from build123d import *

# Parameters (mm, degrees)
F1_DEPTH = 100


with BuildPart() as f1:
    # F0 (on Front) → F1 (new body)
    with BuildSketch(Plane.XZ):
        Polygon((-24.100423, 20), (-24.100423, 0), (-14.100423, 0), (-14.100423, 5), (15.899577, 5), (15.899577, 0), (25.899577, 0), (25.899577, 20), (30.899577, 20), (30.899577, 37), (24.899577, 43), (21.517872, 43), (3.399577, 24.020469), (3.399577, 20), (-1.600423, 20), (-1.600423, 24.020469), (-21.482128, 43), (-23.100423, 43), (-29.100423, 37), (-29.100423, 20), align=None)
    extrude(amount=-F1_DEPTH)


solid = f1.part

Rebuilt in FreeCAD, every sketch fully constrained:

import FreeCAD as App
import Part
import Sketcher
Q = App.Units.Quantity

doc = App.newDocument("Part")
params = doc.addObject("Spreadsheet::Sheet", "Params")
for row, (alias, value) in enumerate([
    ("sketch1_width", "10 mm"),
    ("sketch1_width2", "30 mm"),
    ("sketch1_width3", "5 mm"),
    ("sketch1_height", "20 mm"),
    ("sketch1_height2", "17 mm"),
    ("pad1_length", "100 mm"),
], start=1):
    params.set(f"A{row}", alias)
    params.set(f"B{row}", "=" + value)
    params.setAlias(f"B{row}", alias)

body = doc.addObject("PartDesign::Body", "Body")

# Sketch on XZ plane
sketch1 = body.newObject("Sketcher::SketchObject", "Sketch")
sketch1.AttachmentSupport = (doc.getObject("XZ_Plane"), [""])
sketch1.MapMode = "FlatFace"
sketch1.addGeometry(Part.LineSegment(App.Vector(-24.1, 20, 0), App.Vector(-24.1, 0, 0)), False)
sketch1.addGeometry(Part.LineSegment(App.Vector(-24.1, 0, 0), App.Vector(-14.1, 0, 0)), False)
sketch1.addGeometry(Part.LineSegment(App.Vector(-14.1, 0, 0), App.Vector(-14.1, 5, 0)), False)
sketch1.addGeometry(Part.LineSegment(App.Vector(-14.1, 5, 0), App.Vector(15.9, 5, 0)), False)
sketch1.addGeometry(Part.LineSegment(App.Vector(15.9, 5, 0), App.Vector(15.9, 0, 0)), False)
sketch1.addGeometry(Part.LineSegment(App.Vector(15.9, 0, 0), App.Vector(25.9, 0, 0)), False)
sketch1.addGeometry(Part.LineSegment(App.Vector(25.9, 0, 0), App.Vector(25.9, 20, 0)), False)
sketch1.addGeometry(Part.LineSegment(App.Vector(25.9, 20, 0), App.Vector(30.9, 20, 0)), False)
sketch1.addGeometry(Part.LineSegment(App.Vector(30.9, 20, 0), App.Vector(30.9, 37, 0)), False)
sketch1.addGeometry(Part.LineSegment(App.Vector(30.9, 37, 0), App.Vector(24.9, 43, 0)), False)
sketch1.addGeometry(Part.LineSegment(App.Vector(24.9, 43, 0), App.Vector(21.5, 43, 0)), False)
sketch1.addGeometry(Part.LineSegment(App.Vector(21.5, 43, 0), App.Vector(3.4, 24, 0)), False)
sketch1.addGeometry(Part.LineSegment(App.Vector(3.4, 24, 0), App.Vector(3.4, 20, 0)), False)
sketch1.addGeometry(Part.LineSegment(App.Vector(3.4, 20, 0), App.Vector(-1.6, 20, 0)), False)
sketch1.addGeometry(Part.LineSegment(App.Vector(-1.6, 20, 0), App.Vector(-1.6, 24, 0)), False)
sketch1.addGeometry(Part.LineSegment(App.Vector(-1.6, 24, 0), App.Vector(-21.5, 43, 0)), False)
sketch1.addGeometry(Part.LineSegment(App.Vector(-21.5, 43, 0), App.Vector(-23.1, 43, 0)), False)
sketch1.addGeometry(Part.LineSegment(App.Vector(-23.1, 43, 0), App.Vector(-29.1, 37, 0)), False)
sketch1.addGeometry(Part.LineSegment(App.Vector(-29.1, 37, 0), App.Vector(-29.1, 20, 0)), False)
sketch1.addGeometry(Part.LineSegment(App.Vector(-29.1, 20, 0), App.Vector(-24.1, 20, 0)), False)
sketch1.addConstraint(Sketcher.Constraint("Coincident", 0, 2, 1, 1))
sketch1.addConstraint(Sketcher.Constraint("Coincident", 1, 2, 2, 1))
sketch1.addConstraint(Sketcher.Constraint("Coincident", 2, 2, 3, 1))
sketch1.addConstraint(Sketcher.Constraint("Coincident", 3, 2, 4, 1))
sketch1.addConstraint(Sketcher.Constraint("Coincident", 4, 2, 5, 1))
sketch1.addConstraint(Sketcher.Constraint("Coincident", 5, 2, 6, 1))
sketch1.addConstraint(Sketcher.Constraint("Coincident", 6, 2, 7, 1))
sketch1.addConstraint(Sketcher.Constraint("Coincident", 7, 2, 8, 1))
sketch1.addConstraint(Sketcher.Constraint("Coincident", 8, 2, 9, 1))
sketch1.addConstraint(Sketcher.Constraint("Coincident", 9, 2, 10, 1))
sketch1.addConstraint(Sketcher.Constraint("Coincident", 10, 2, 11, 1))
sketch1.addConstraint(Sketcher.Constraint("Coincident", 11, 2, 12, 1))
sketch1.addConstraint(Sketcher.Constraint("Coincident", 12, 2, 13, 1))
sketch1.addConstraint(Sketcher.Constraint("Coincident", 13, 2, 14, 1))
sketch1.addConstraint(Sketcher.Constraint("Coincident", 14, 2, 15, 1))
sketch1.addConstraint(Sketcher.Constraint("Coincident", 15, 2, 16, 1))
sketch1.addConstraint(Sketcher.Constraint("Coincident", 16, 2, 17, 1))
sketch1.addConstraint(Sketcher.Constraint("Coincident", 17, 2, 18, 1))
sketch1.addConstraint(Sketcher.Constraint("Coincident", 18, 2, 19, 1))
sketch1.addConstraint(Sketcher.Constraint("Coincident", 19, 2, 0, 1))
sketch1.addConstraint(Sketcher.Constraint("Vertical", 0))
sketch1.addConstraint(Sketcher.Constraint("Horizontal", 1))
sketch1.addConstraint(Sketcher.Constraint("Vertical", 2))
sketch1.addConstraint(Sketcher.Constraint("Horizontal", 3))
sketch1.addConstraint(Sketcher.Constraint("Vertical", 4))
sketch1.addConstraint(Sketcher.Constraint("Horizontal", 5))
sketch1.addConstraint(Sketcher.Constraint("Vertical", 6))
sketch1.addConstraint(Sketcher.Constraint("Horizontal", 7))
sketch1.addConstraint(Sketcher.Constraint("Vertical", 8))
sketch1.addConstraint(Sketcher.Constraint("Horizontal", 10))
sketch1.addConstraint(Sketcher.Constraint("Vertical", 12))
sketch1.addConstraint(Sketcher.Constraint("Horizontal", 13))
sketch1.addConstraint(Sketcher.Constraint("Vertical", 14))
sketch1.addConstraint(Sketcher.Constraint("Horizontal", 16))
sketch1.addConstraint(Sketcher.Constraint("Vertical", 18))
sketch1.addConstraint(Sketcher.Constraint("Horizontal", 19))
sketch1.addConstraint(Sketcher.Constraint("PointOnObject", 0, 2, -1))
sketch1.addConstraint(Sketcher.Constraint("PointOnObject", 4, 2, -1))
sketch1.addConstraint(Sketcher.Constraint("Perpendicular", 11, 15))
sketch1.addConstraint(Sketcher.Constraint("Perpendicular", 9, 17))
sketch1.addConstraint(Sketcher.Constraint("Horizontal", 7, 2, 12, 2))
sketch1.addConstraint(Sketcher.Constraint("Horizontal", 11, 2, 14, 2))
sketch1.addConstraint(Sketcher.Constraint("Horizontal", 10, 2, 15, 2))
sketch1.addConstraint(Sketcher.Constraint("Horizontal", 8, 2, 17, 2))
sketch1.addConstraint(Sketcher.Constraint("Horizontal", 13, 2, 18, 2))
sketch1.addConstraint(Sketcher.Constraint("Equal", 1, 5))
sketch1.addConstraint(Sketcher.Constraint("Equal", 7, 13))
sketch1.addConstraint(Sketcher.Constraint("Equal", 13, 19))
sketch1.addConstraint(Sketcher.Constraint("Equal", 19, 2))
sketch1.addConstraint(Sketcher.Constraint("Equal", 9, 17))
sketch1.addConstraint(Sketcher.Constraint("DistanceX", 1, 1, 1, 2, Q("10 mm")))
sketch1.addConstraint(Sketcher.Constraint("DistanceX", 3, 1, 3, 2, Q("30 mm")))
sketch1.addConstraint(Sketcher.Constraint("DistanceX", 7, 1, 7, 2, Q("5 mm")))
sketch1.addConstraint(Sketcher.Constraint("DistanceY", 0, 2, 0, 1, Q("20 mm")))
sketch1.addConstraint(Sketcher.Constraint("DistanceY", 8, 1, 8, 2, Q("17 mm")))
sketch1.addConstraint(Sketcher.Constraint("DistanceY", -1, 1, 9, 2, Q("43 mm")))
sketch1.addConstraint(Sketcher.Constraint("DistanceX", 11, 2, 3, 2, Q("12.5 mm")))
sketch1.addConstraint(Sketcher.Constraint("DistanceY", 12, 2, 12, 1, Q("4.020469 mm")))
sketch1.addConstraint(Sketcher.Constraint("DistanceX", 10, 2, 10, 1, Q("3.381705 mm")))
sketch1.addConstraint(Sketcher.Constraint("DistanceX", 0, 2, -1, 1, Q("24.100423 mm")))
sketch1.setExpression("Constraints[50]", "Params.sketch1_width")
sketch1.setExpression("Constraints[51]", "Params.sketch1_width2")
sketch1.setExpression("Constraints[52]", "Params.sketch1_width3")
sketch1.setExpression("Constraints[53]", "Params.sketch1_height")
sketch1.setExpression("Constraints[54]", "Params.sketch1_height2")
pad1 = body.newObject("PartDesign::Pad", "Pad")
pad1.Profile = sketch1
pad1.setExpression("Length", "Params.pad1_length")
pad1.Reversed = True

doc.recompute()
